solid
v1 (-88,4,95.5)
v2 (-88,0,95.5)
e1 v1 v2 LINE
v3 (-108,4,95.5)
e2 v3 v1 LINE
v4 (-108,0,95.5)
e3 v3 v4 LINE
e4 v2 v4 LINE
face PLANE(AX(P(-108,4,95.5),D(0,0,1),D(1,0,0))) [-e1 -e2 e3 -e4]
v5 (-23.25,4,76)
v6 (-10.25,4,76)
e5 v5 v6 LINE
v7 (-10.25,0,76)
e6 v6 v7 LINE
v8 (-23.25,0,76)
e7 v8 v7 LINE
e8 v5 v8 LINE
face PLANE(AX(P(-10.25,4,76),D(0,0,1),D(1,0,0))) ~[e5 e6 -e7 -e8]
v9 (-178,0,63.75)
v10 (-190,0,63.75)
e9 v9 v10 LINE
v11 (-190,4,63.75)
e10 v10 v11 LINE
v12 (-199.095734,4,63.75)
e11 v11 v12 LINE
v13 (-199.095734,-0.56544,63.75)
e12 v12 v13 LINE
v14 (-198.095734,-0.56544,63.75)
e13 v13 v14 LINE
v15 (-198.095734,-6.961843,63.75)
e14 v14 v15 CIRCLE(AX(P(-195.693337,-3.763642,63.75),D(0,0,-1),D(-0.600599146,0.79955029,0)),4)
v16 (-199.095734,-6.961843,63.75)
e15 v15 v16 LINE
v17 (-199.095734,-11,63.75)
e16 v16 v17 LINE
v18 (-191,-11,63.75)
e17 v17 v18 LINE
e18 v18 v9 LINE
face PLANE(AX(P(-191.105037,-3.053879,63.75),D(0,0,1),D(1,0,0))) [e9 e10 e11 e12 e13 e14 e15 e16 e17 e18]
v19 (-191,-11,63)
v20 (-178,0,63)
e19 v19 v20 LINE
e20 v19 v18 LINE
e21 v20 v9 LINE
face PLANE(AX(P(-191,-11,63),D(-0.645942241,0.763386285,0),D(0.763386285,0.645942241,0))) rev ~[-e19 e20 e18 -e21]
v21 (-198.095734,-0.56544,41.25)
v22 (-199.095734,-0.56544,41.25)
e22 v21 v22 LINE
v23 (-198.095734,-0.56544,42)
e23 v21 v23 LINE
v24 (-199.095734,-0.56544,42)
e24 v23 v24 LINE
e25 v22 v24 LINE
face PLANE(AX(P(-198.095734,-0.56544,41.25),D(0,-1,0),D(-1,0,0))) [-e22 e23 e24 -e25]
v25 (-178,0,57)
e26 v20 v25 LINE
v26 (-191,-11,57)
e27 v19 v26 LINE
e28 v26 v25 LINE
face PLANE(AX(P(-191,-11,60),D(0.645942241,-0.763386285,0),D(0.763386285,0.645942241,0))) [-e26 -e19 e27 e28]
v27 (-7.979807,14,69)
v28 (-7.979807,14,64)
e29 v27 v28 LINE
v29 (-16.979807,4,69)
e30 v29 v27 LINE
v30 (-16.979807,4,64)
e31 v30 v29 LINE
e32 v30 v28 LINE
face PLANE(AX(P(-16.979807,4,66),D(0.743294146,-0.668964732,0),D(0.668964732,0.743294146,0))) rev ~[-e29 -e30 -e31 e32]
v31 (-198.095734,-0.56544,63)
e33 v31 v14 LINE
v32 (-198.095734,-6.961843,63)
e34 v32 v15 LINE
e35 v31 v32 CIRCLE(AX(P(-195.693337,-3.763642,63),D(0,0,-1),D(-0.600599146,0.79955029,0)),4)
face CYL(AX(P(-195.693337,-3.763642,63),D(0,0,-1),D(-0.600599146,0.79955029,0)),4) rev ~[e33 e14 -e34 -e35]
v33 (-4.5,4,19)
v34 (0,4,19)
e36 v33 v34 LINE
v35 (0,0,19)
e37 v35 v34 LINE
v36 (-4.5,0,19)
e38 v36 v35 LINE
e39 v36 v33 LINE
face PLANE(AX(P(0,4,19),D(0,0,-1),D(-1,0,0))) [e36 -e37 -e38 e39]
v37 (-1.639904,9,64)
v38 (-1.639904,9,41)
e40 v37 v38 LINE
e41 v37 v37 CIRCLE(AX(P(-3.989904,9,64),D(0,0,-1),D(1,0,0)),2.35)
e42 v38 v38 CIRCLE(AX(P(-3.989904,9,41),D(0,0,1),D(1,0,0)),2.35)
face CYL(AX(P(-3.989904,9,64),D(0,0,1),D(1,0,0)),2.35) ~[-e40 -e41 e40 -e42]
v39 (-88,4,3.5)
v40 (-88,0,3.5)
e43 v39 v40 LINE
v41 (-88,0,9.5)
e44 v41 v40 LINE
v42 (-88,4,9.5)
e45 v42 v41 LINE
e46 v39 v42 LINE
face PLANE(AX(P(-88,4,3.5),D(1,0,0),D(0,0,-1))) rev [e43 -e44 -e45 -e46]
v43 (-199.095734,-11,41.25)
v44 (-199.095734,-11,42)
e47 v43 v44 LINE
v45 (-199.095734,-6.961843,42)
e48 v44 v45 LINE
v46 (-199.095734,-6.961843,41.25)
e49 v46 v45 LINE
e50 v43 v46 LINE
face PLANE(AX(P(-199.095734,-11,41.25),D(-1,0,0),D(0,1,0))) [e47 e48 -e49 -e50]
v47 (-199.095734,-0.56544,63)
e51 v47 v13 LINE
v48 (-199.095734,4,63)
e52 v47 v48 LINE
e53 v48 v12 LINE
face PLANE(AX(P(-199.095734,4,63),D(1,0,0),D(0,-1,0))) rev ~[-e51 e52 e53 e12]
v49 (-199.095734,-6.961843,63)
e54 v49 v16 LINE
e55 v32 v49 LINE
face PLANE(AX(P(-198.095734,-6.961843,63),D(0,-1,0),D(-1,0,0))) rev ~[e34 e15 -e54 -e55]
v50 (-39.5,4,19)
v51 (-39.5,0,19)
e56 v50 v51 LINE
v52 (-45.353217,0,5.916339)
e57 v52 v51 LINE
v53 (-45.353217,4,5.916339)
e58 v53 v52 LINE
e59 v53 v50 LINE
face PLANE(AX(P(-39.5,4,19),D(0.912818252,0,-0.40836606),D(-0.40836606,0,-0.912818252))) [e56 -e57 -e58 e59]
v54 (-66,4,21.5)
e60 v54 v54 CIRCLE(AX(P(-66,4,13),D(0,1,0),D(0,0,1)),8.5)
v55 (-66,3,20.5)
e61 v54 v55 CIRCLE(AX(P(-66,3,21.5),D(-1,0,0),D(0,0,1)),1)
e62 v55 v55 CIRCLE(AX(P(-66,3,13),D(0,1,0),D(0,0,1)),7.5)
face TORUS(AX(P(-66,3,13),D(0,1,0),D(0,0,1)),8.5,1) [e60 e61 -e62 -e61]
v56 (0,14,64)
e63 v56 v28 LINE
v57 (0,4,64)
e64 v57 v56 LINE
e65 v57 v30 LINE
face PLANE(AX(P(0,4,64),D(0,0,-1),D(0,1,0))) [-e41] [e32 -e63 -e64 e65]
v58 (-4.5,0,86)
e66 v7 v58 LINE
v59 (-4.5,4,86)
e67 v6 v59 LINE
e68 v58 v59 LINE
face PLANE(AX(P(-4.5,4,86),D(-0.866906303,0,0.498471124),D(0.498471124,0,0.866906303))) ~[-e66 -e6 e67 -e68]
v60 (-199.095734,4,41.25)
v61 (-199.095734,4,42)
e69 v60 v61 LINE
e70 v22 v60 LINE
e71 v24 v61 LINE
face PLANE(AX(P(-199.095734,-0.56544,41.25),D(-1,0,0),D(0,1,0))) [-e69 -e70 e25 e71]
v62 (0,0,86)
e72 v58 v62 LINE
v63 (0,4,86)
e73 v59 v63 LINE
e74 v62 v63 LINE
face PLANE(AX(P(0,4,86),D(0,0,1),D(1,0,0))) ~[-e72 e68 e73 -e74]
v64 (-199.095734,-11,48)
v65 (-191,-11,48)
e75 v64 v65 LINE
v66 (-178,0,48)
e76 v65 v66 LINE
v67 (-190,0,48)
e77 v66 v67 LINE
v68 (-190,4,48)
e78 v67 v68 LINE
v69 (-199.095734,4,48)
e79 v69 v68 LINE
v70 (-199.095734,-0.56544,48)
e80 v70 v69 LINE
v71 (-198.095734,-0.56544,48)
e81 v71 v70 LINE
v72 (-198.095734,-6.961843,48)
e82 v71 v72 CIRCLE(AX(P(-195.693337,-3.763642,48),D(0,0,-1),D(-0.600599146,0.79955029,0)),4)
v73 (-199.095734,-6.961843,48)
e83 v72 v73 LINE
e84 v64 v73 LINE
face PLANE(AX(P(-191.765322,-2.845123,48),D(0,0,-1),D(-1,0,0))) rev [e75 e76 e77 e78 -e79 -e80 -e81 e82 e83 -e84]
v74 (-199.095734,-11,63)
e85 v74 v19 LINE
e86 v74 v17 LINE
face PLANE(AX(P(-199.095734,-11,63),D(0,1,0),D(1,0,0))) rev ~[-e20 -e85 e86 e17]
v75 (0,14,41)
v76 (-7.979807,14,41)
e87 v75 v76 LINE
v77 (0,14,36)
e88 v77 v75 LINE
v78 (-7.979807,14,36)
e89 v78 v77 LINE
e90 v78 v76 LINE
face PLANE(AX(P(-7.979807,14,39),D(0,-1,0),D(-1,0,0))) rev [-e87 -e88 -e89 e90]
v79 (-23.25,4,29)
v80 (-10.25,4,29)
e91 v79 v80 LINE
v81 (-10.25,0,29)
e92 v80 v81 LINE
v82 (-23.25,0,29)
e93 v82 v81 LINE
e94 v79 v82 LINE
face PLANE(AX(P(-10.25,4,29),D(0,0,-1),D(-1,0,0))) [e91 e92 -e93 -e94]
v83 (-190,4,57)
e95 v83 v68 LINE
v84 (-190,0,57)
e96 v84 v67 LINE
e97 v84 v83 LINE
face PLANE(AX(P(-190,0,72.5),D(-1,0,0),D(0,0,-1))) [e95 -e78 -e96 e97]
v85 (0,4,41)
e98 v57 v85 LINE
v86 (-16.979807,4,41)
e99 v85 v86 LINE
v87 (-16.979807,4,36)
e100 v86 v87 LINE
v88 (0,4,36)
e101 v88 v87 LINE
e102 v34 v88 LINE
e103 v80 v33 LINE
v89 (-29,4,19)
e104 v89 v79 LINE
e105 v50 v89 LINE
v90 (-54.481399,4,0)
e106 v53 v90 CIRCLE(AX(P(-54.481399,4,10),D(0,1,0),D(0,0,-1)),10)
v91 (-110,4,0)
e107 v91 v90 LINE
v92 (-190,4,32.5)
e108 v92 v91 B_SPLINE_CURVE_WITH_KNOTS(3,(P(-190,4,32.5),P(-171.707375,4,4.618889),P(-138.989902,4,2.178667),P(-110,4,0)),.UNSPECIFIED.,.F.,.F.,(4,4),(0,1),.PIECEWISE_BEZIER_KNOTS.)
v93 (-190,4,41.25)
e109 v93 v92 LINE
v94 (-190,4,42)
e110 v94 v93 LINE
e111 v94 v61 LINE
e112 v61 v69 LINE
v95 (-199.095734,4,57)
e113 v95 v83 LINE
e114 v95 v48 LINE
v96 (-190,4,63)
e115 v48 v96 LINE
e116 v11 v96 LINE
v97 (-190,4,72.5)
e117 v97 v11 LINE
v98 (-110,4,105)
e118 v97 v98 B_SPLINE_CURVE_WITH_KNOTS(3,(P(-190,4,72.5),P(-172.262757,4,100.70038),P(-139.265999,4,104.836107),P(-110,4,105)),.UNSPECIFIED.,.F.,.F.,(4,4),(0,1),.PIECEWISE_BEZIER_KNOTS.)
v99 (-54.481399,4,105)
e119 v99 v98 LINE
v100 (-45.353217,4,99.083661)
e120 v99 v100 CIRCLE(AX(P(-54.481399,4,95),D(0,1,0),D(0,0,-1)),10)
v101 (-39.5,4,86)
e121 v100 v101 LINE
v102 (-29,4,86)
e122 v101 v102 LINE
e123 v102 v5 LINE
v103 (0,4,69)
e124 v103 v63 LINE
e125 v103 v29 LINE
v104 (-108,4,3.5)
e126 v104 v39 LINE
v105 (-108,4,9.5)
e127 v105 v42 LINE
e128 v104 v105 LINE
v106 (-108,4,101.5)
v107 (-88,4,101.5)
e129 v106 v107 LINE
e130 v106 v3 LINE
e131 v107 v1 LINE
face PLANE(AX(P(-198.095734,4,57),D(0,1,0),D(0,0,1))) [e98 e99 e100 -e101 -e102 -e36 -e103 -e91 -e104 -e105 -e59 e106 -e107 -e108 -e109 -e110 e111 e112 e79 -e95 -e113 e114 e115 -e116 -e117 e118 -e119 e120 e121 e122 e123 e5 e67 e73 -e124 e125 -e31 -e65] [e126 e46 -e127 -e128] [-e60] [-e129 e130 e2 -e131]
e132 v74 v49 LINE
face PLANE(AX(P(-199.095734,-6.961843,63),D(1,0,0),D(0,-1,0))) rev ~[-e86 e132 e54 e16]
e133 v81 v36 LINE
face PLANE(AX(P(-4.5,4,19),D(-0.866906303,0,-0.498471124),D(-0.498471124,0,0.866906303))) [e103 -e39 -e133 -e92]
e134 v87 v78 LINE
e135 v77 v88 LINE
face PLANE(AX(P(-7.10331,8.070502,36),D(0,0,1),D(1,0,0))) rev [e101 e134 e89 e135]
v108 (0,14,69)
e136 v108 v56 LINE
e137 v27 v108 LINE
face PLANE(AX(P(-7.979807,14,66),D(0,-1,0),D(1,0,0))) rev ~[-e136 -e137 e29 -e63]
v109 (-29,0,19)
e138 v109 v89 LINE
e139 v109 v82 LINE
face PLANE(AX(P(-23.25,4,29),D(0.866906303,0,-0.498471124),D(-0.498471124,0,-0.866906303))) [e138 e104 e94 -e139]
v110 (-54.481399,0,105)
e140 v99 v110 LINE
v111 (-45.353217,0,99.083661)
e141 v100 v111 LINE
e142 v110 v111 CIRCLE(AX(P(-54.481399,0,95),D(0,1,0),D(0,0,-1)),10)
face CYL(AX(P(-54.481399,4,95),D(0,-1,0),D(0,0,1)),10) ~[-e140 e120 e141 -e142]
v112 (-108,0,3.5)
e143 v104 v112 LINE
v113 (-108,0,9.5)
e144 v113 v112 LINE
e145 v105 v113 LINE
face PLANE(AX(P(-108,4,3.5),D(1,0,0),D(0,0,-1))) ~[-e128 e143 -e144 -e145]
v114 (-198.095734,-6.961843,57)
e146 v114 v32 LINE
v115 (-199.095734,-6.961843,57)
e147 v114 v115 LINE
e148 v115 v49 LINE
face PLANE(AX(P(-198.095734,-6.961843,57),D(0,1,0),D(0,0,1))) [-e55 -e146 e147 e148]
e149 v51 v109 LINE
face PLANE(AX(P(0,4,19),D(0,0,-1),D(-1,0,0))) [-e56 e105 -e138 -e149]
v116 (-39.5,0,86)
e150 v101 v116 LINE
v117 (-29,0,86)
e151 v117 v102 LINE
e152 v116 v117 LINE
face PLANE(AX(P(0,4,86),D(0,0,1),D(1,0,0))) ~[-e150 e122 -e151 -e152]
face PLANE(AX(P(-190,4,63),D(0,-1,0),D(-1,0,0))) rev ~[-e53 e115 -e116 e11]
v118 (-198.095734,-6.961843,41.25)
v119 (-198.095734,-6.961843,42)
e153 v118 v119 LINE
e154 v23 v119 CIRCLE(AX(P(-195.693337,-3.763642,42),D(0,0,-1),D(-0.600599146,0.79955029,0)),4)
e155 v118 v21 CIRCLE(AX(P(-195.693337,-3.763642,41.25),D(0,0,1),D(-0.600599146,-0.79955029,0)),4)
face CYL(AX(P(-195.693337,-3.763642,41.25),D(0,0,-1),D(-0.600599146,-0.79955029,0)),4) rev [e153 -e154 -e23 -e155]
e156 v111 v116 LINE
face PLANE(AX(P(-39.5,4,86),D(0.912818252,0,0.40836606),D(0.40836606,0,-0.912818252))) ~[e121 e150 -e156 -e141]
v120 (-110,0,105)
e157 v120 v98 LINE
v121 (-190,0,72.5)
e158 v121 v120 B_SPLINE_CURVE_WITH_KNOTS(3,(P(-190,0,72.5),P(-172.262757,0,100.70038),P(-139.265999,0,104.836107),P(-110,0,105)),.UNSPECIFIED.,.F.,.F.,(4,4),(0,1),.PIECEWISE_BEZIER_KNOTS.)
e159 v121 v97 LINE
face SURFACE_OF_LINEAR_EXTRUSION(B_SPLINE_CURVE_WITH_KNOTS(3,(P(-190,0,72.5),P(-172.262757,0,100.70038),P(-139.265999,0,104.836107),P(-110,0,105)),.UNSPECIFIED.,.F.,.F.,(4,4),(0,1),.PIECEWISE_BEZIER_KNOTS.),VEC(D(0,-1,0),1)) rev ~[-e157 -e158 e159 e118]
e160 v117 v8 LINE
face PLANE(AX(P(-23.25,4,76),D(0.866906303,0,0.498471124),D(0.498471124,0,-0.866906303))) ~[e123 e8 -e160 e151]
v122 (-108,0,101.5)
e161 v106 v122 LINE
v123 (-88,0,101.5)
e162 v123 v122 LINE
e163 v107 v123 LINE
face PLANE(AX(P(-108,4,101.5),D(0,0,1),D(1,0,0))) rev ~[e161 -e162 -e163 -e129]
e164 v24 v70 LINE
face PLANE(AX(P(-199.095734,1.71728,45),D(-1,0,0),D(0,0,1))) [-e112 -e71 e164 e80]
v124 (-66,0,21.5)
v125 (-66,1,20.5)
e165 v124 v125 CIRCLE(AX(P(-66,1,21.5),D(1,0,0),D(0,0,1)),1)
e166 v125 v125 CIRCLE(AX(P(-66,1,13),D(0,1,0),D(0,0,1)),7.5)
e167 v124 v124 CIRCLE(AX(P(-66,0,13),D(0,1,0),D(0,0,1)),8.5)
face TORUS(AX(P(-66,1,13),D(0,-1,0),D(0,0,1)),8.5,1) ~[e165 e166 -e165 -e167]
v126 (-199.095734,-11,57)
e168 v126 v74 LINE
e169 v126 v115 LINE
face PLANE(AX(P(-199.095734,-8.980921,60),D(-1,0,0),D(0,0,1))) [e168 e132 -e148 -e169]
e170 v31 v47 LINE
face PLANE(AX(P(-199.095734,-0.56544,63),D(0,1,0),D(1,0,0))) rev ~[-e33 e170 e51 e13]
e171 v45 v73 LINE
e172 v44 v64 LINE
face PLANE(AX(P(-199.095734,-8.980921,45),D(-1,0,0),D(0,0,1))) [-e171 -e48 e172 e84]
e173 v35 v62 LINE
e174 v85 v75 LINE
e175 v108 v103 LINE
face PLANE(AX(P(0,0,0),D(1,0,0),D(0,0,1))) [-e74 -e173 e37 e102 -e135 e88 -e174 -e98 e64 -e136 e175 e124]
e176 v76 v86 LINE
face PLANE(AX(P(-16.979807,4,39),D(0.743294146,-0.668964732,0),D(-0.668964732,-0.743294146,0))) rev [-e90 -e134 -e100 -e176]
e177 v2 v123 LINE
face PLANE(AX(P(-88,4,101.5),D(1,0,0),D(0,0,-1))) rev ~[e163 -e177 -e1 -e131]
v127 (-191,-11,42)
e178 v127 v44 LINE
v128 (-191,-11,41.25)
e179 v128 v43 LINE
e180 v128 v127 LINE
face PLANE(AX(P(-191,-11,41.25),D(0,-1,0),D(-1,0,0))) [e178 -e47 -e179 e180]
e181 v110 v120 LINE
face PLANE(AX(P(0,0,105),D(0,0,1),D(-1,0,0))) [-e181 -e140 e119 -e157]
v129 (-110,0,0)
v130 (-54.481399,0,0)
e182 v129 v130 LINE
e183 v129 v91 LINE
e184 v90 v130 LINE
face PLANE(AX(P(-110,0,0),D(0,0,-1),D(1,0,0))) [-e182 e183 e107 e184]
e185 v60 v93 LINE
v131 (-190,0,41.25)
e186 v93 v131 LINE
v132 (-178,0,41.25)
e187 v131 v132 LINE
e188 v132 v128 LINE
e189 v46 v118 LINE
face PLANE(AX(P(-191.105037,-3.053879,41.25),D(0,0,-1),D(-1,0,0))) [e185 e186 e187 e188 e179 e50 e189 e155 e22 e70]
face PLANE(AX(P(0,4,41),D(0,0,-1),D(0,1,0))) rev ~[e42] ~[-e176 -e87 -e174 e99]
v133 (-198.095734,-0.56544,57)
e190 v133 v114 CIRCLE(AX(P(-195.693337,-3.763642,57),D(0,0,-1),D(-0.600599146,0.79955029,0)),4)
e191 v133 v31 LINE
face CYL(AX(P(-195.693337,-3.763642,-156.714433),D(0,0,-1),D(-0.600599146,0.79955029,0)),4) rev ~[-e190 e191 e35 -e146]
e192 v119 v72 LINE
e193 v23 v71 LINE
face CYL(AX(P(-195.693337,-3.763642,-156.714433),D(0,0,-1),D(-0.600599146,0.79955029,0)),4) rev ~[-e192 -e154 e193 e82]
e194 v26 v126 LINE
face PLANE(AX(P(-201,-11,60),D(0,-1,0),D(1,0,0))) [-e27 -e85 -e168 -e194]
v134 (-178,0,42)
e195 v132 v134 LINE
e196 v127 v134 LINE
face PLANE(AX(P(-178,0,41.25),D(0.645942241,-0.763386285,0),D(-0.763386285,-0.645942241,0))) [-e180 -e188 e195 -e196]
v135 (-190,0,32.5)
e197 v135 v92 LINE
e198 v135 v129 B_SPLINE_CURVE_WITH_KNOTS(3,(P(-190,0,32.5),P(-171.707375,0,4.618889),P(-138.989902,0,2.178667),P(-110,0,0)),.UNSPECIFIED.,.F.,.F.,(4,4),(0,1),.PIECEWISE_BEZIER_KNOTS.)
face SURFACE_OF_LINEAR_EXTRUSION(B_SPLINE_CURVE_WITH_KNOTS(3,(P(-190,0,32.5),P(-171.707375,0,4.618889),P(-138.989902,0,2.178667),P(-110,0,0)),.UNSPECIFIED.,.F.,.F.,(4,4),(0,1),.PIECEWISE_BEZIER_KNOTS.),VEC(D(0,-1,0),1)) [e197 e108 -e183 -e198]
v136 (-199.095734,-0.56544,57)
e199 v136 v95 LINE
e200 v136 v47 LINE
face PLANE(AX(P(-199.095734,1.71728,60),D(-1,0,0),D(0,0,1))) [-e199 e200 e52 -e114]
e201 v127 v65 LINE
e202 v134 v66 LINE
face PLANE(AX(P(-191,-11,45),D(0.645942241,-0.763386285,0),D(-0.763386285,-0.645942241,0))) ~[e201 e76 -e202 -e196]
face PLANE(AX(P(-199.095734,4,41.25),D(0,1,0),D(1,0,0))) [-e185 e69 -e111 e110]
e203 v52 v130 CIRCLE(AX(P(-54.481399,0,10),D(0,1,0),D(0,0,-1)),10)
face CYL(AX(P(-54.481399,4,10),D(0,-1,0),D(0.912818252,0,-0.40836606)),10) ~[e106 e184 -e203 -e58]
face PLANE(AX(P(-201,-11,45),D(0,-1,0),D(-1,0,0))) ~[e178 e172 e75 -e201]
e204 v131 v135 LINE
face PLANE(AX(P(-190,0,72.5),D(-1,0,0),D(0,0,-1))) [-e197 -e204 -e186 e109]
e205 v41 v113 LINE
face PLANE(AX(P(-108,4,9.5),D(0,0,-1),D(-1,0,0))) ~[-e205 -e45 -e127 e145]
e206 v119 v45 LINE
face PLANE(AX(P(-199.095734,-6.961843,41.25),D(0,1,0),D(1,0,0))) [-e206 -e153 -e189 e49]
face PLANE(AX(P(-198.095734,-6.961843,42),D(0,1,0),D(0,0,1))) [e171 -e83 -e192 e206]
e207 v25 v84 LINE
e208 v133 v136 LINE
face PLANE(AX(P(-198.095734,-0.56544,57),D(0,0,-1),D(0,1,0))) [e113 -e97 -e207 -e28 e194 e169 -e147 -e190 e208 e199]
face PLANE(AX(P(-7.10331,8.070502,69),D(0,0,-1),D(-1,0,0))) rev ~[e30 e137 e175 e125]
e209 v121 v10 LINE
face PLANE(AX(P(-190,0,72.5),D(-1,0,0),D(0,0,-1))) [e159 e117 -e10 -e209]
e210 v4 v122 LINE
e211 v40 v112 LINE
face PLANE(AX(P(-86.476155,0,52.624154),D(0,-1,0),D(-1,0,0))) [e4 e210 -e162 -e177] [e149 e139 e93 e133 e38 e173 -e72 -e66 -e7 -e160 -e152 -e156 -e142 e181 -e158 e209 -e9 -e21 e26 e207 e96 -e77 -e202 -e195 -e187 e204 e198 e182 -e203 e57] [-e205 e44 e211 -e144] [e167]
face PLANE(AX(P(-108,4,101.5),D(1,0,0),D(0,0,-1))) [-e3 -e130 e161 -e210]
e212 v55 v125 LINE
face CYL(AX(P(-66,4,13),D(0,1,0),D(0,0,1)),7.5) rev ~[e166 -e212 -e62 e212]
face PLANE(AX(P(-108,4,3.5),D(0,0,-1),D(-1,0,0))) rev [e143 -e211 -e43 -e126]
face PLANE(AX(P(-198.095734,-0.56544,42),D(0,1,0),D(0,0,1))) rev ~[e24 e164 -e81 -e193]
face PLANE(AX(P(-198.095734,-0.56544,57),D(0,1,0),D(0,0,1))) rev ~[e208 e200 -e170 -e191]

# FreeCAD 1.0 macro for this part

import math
import FreeCAD as App
import Part
import Sketcher


def edges_at(feature, points):
    """Names of the edges that pass closest to the given points."""
    edges = feature.Shape.Edges
    near = lambda p: min(range(len(edges)), key=lambda i: edges[i].distToShape(Part.Vertex(*p))[0])
    return sorted({f"Edge{near(p) + 1}" for p in points})


def add_polygon(sketch, points):
    """Adds a closed chain of lines whose ends are joined by coincident constraints."""
    first, n = sketch.GeometryCount, len(points)
    for a, b in zip(points, points[1:] + points[:1]):
        sketch.addGeometry(Part.LineSegment(App.Vector(*a, 0), App.Vector(*b, 0)), False)
    for i in range(n):
        sketch.addConstraint(Sketcher.Constraint("Coincident", first + i, 2, first + (i + 1) % n, 1))

doc = App.newDocument("Part")
body = doc.addObject("PartDesign::Body", "Body")

# Sketch on XZ plane
sketch1 = doc.addObject("Sketcher::SketchObject", "Sketch")
body.addObject(sketch1)
sketch1.AttachmentSupport = (doc.XZ_Plane, [""])
sketch1.MapMode = "FlatFace"
sketch1.addGeometry([
    Part.LineSegment(App.Vector(0, 0, 0), App.Vector(-110, 0, 0)),  # 0
    Part.BSplineCurve([App.Vector(-190, 32.5, 0), App.Vector(-171.707375, 4.618889, 0), App.Vector(-138.989902, 2.178667, 0), App.Vector(-110, 0, 0)], [4, 4], [0, 1], False, 3, [1, 1, 1, 1], False),  # 1
    Part.LineSegment(App.Vector(-190, 32.5, 0), App.Vector(-190, 72.5, 0)),  # 2
    Part.BSplineCurve([App.Vector(-190, 72.5, 0), App.Vector(-172.262757, 100.70038, 0), App.Vector(-139.265999, 104.836107, 0), App.Vector(-110, 105, 0)], [4, 4], [0, 1], False, 3, [1, 1, 1, 1], False),  # 3
    Part.LineSegment(App.Vector(-110, 105, 0), App.Vector(0, 105, 0)),  # 4
    Part.LineSegment(App.Vector(0, 105, 0), App.Vector(0, 0, 0)),  # 5
], False)
sketch1.addConstraint([
    Sketcher.Constraint("Block", 1),
    Sketcher.Constraint("Block", 3),
    Sketcher.Constraint("Coincident", 0, 2, 1, 2),
    Sketcher.Constraint("Coincident", 1, 1, 2, 1),
    Sketcher.Constraint("Coincident", 2, 2, 3, 1),
    Sketcher.Constraint("Coincident", 3, 2, 4, 1),
    Sketcher.Constraint("Coincident", 4, 2, 5, 1),
    Sketcher.Constraint("Coincident", 5, 2, 0, 1),
    Sketcher.Constraint("Horizontal", 0),
    Sketcher.Constraint("Horizontal", 4),
    Sketcher.Constraint("Vertical", 5),
    Sketcher.Constraint("PointOnObject", 4, 2, -2),
])
pad1 = doc.addObject("PartDesign::Pad", "Pad")
body.addObject(pad1)
pad1.Profile = sketch1
pad1.Length = 4
pad1.Reversed = True

# Sketch on XY plane
sketch2 = doc.addObject("Sketcher::SketchObject", "Sketch001")
body.addObject(sketch2)
sketch2.AttachmentSupport = (doc.XY_Plane, [""])
sketch2.MapMode = "FlatFace"
sketch2.AttachmentOffset = App.Placement(App.Vector(0, 0, 60), App.Rotation())
add_polygon(sketch2, [(-190, 4), (-201, 4), (-201, -11), (-191, -11), (-178, 0)])  # lines 0-4
sketch2.addConstraint([
    Sketcher.Constraint("Horizontal", 0),
    Sketcher.Constraint("Vertical", 1),
    Sketcher.Constraint("Horizontal", 2),
    Sketcher.Constraint("PointOnObject", 3, 2, -1),
    Sketcher.Constraint("DistanceX", 0, 2, 0, 1, 11.0),
    Sketcher.Constraint("DistanceX", 2, 1, 2, 2, 10.0),
    Sketcher.Constraint("DistanceY", 1, 2, 1, 1, 15.0),
    Sketcher.Constraint("DistanceX", 0, 2, -1, 1, 201.0),
    Sketcher.Constraint("DistanceY", -1, 1, 0, 2, 4.0),
    Sketcher.Constraint("DistanceX", 3, 2, -1, 1, 178.0),
])
pad2 = doc.addObject("PartDesign::Pad", "Pad001")
body.addObject(pad2)
pad2.Profile = sketch2
pad2.Length = 6
pad2.Midplane = True
doc.recompute()

datumplane = doc.addObject("PartDesign::Plane", "DatumPlane")
body.addObject(datumplane)
datumplane.AttachmentSupport = (doc.XY_Plane, [""])
datumplane.MapMode = "FlatFace"
datumplane.AttachmentOffset = App.Placement(App.Vector(0, 0, 52.5), App.Rotation())
mirrored = doc.addObject("PartDesign::Mirrored", "Mirrored")
body.addObject(mirrored)
mirrored.Originals = [pad2]
mirrored.MirrorPlane = (datumplane, [""])
body.Tip = mirrored

# Sketch on XY plane
sketch3 = doc.addObject("Sketcher::SketchObject", "Sketch002")
body.addObject(sketch3)
sketch3.AttachmentSupport = (doc.XY_Plane, [""])
sketch3.MapMode = "FlatFace"
sketch3.AttachmentOffset = App.Placement(App.Vector(0, 0, 66), App.Rotation())
add_polygon(sketch3, [(-8, 14), (-17, 4), (0, 4), (0, 14)])  # lines 0-3
sketch3.addConstraint([
    Sketcher.Constraint("Horizontal", 1),
    Sketcher.Constraint("Vertical", 2),
    Sketcher.Constraint("Horizontal", 3),
    Sketcher.Constraint("PointOnObject", 1, 2, -2),
    Sketcher.Constraint("DistanceY", 2, 1, 2, 2, 10.0),
    Sketcher.Constraint("DistanceY", -1, 1, 0, 2, 4.0),
    Sketcher.Constraint("DistanceX", 0, 2, 3, 2, 9.0),
    Sketcher.Constraint("DistanceX", 1, 1, 1, 2, 16.979807),
])
pad3 = doc.addObject("PartDesign::Pad", "Pad002")
body.addObject(pad3)
pad3.Profile = sketch3
pad3.Length = 6
pad3.Midplane = True
doc.recompute()

datumplane2 = doc.addObject("PartDesign::Plane", "DatumPlane001")
body.addObject(datumplane2)
datumplane2.AttachmentSupport = (doc.XY_Plane, [""])
datumplane2.MapMode = "FlatFace"
datumplane2.AttachmentOffset = App.Placement(App.Vector(0, 0, 52.5), App.Rotation())
mirrored2 = doc.addObject("PartDesign::Mirrored", "Mirrored001")
body.addObject(mirrored2)
mirrored2.Originals = [pad3]
mirrored2.MirrorPlane = (datumplane2, [""])
body.Tip = mirrored2

# Sketch on XY plane
sketch4 = doc.addObject("Sketcher::SketchObject", "Sketch003")
body.addObject(sketch4)
sketch4.AttachmentSupport = (doc.XY_Plane, [""])
sketch4.MapMode = "FlatFace"
sketch4.AttachmentOffset = App.Placement(App.Vector(0, 0, 42), App.Rotation())
sketch4.addGeometry(Part.Circle(App.Vector(-4, 10, 0), App.Vector(0, 0, 1), 2.5), False)
sketch4.addConstraint([
    Sketcher.Constraint("Diameter", 0, 5.0),
    Sketcher.Constraint("DistanceX", 0, 3, -1, 1, 4.0),
    Sketcher.Constraint("DistanceY", -1, 1, 0, 3, 10.0),
])
pad4 = doc.addObject("PartDesign::Pad", "Pad003")
body.addObject(pad4)
pad4.Profile = sketch4
pad4.Type = "UpToFirst"

# Sketch on XZ plane
sketch5 = doc.addObject("Sketcher::SketchObject", "Sketch004")
body.addObject(sketch5)
sketch5.AttachmentSupport = (doc.XZ_Plane, [""])
sketch5.MapMode = "FlatFace"
sketch5.AttachmentOffset = App.Placement(App.Vector(0, 0, -4), App.Rotation())
add_polygon(sketch5, [(-108, 96), (-108, 102), (-88, 102), (-88, 96)])  # lines 0-3
sketch5.addConstraint([
    Sketcher.Constraint("Vertical", 0),
    Sketcher.Constraint("Horizontal", 1),
    Sketcher.Constraint("Vertical", 2),
    Sketcher.Constraint("Horizontal", 3),
    Sketcher.Constraint("DistanceX", 1, 1, 1, 2, 20.0),
    Sketcher.Constraint("DistanceY", 0, 1, 0, 2, 6.0),
    Sketcher.Constraint("DistanceX", 0, 2, -1, 1, 108.0),
    Sketcher.Constraint("DistanceY", -1, 1, 0, 2, 101.5),
])
pocket1 = doc.addObject("PartDesign::Pocket", "Pocket")
body.addObject(pocket1)
pocket1.Profile = sketch5
pocket1.Length = 10
pocket1.Reversed = True
doc.recompute()

datumplane3 = doc.addObject("PartDesign::Plane", "DatumPlane002")
body.addObject(datumplane3)
datumplane3.AttachmentSupport = (doc.XY_Plane, [""])
datumplane3.MapMode = "FlatFace"
datumplane3.AttachmentOffset = App.Placement(App.Vector(0, 0, 52.5), App.Rotation())
mirrored3 = doc.addObject("PartDesign::Mirrored", "Mirrored002")
body.addObject(mirrored3)
mirrored3.Originals = [pocket1]
mirrored3.MirrorPlane = (datumplane3, [""])
body.Tip = mirrored3

# Sketch on XZ plane
sketch6 = doc.addObject("Sketcher::SketchObject", "Sketch005")
body.addObject(sketch6)
sketch6.AttachmentSupport = (doc.XZ_Plane, [""])
sketch6.MapMode = "FlatFace"
sketch6.AttachmentOffset = App.Placement(App.Vector(0, 0, -4), App.Rotation())
add_polygon(sketch6, [(-40, 19), (0, 19), (0, 0), (-48, 0)])  # lines 0-3
sketch6.addConstraint([
    Sketcher.Constraint("Horizontal", 0),
    Sketcher.Constraint("Vertical", 1),
    Sketcher.Constraint("Horizontal", 2),
    Sketcher.Constraint("Coincident", 1, 2, -1, 1),
    Sketcher.Constraint("DistanceX", 2, 2, 2, 1, 48.0),
    Sketcher.Constraint("DistanceY", 1, 2, 1, 1, 19.0),
    Sketcher.Constraint("DistanceX", 0, 1, 0, 2, 39.5),
])
pocket2 = doc.addObject("PartDesign::Pocket", "Pocket001")
body.addObject(pocket2)
pocket2.Profile = sketch6
pocket2.Length = 456.537127
pocket2.Midplane = True
doc.recompute()

datumplane4 = doc.addObject("PartDesign::Plane", "DatumPlane003")
body.addObject(datumplane4)
datumplane4.AttachmentSupport = (doc.XY_Plane, [""])
datumplane4.MapMode = "FlatFace"
datumplane4.AttachmentOffset = App.Placement(App.Vector(0, 0, 52.5), App.Rotation())
mirrored4 = doc.addObject("PartDesign::Mirrored", "Mirrored003")
body.addObject(mirrored4)
mirrored4.Originals = [pocket2]
mirrored4.MirrorPlane = (datumplane4, [""])
body.Tip = mirrored4
doc.recompute()

fillet = doc.addObject("PartDesign::Fillet", "Fillet")
body.addObject(fillet)
fillet.Base = (mirrored4, edges_at(mirrored4, [(-48, 2, 0), (-48, 2, 105)]))
fillet.Radius = 10

# Sketch on XZ plane
sketch7 = doc.addObject("Sketcher::SketchObject", "Sketch006")
body.addObject(sketch7)
sketch7.AttachmentSupport = (doc.XZ_Plane, [""])
sketch7.MapMode = "FlatFace"
sketch7.AttachmentOffset = App.Placement(App.Vector(0, 0, -4), App.Rotation())
add_polygon(sketch7, [(-10, 29), (-4, 19), (-29, 19), (-23, 29)])  # lines 0-3
sketch7.addConstraint([
    Sketcher.Constraint("Horizontal", 1),
    Sketcher.Constraint("Horizontal", 3),
    Sketcher.Constraint("Equal", 0, 2),
    Sketcher.Constraint("DistanceX", 3, 1, 3, 2, 13.0),
    Sketcher.Constraint("DistanceX", 1, 2, 1, 1, 24.5),
    Sketcher.Constraint("DistanceY", -1, 1, 0, 2, 19.0),
    Sketcher.Constraint("DistanceX", 1, 2, -1, 1, 29.0),
    Sketcher.Constraint("DistanceY", -1, 1, 2, 2, 29.0),
])
pocket3 = doc.addObject("PartDesign::Pocket", "Pocket002")
body.addObject(pocket3)
pocket3.Profile = sketch7
pocket3.Length = 456.537127
pocket3.Midplane = True
doc.recompute()

datumplane5 = doc.addObject("PartDesign::Plane", "DatumPlane004")
body.addObject(datumplane5)
datumplane5.AttachmentSupport = (doc.XY_Plane, [""])
datumplane5.MapMode = "FlatFace"
datumplane5.AttachmentOffset = App.Placement(App.Vector(0, 0, 52.5), App.Rotation())
mirrored5 = doc.addObject("PartDesign::Mirrored", "Mirrored004")
body.addObject(mirrored5)
mirrored5.Originals = [pocket3]
mirrored5.MirrorPlane = (datumplane5, [""])
body.Tip = mirrored5

# Sketch on YZ plane
sketch8 = doc.addObject("Sketcher::SketchObject", "Sketch007")
body.addObject(sketch8)
sketch8.AttachmentSupport = (doc.YZ_Plane, [""])
sketch8.MapMode = "FlatFace"
add_polygon(sketch8, [(14, 64), (4, 64), (4, 41), (14, 41)])  # lines 0-3
sketch8.addConstraint([
    Sketcher.Constraint("Horizontal", 0),
    Sketcher.Constraint("Vertical", 1),
    Sketcher.Constraint("Horizontal", 2),
    Sketcher.Constraint("Vertical", 3),
    Sketcher.Constraint("DistanceX", 0, 2, 0, 1, 10.0),
    Sketcher.Constraint("DistanceY", 1, 2, 1, 1, 23.0),
    Sketcher.Constraint("DistanceX", -1, 1, 0, 2, 4.0),
    Sketcher.Constraint("DistanceY", -1, 1, 0, 2, 64.0),
])
pocket4 = doc.addObject("PartDesign::Pocket", "Pocket003")
body.addObject(pocket4)
pocket4.Profile = sketch8
pocket4.Length = 21

# Sketch on XY plane
sketch9 = doc.addObject("Sketcher::SketchObject", "Sketch008")
body.addObject(sketch9)
sketch9.AttachmentSupport = (doc.XY_Plane, [""])
sketch9.MapMode = "FlatFace"
sketch9.AttachmentOffset = App.Placement(App.Vector(0, 0, 64), App.Rotation())
sketch9.addGeometry(Part.Circle(App.Vector(-4, 9, 0), App.Vector(0, 0, 1), 2.4), False)
sketch9.addConstraint([
    Sketcher.Constraint("Diameter", 0, 4.7),
    Sketcher.Constraint("DistanceY", -1, 1, 0, 3, 9.0),
    Sketcher.Constraint("DistanceX", 0, 3, -1, 1, 3.989904),
])
pad5 = doc.addObject("PartDesign::Pad", "Pad004")
body.addObject(pad5)
pad5.Profile = sketch9
pad5.Type = "UpToFirst"
pad5.Reversed = True

# Sketch on XY plane
sketch10 = doc.addObject("Sketcher::SketchObject", "Sketch009")
body.addObject(sketch10)
sketch10.AttachmentSupport = (doc.XY_Plane, [""])
sketch10.MapMode = "FlatFace"
sketch10.AttachmentOffset = App.Placement(App.Vector(0, 0, 52.5), App.Rotation())
sketch10.addGeometry([
    Part.LineSegment(App.Vector(-198.1, -0.6, 0), App.Vector(-198.1, 4, 0)),  # 0
    Part.LineSegment(App.Vector(-198.1, 4, 0), App.Vector(-202.6, 4.8, 0)),  # 1
    Part.LineSegment(App.Vector(-202.6, 4.8, 0), App.Vector(-202.7, -12.1, 0)),  # 2
    Part.LineSegment(App.Vector(-202.7, -12.1, 0), App.Vector(-198.1, -11, 0)),  # 3
    Part.LineSegment(App.Vector(-198.1, -11, 0), App.Vector(-198.1, -7, 0)),  # 4
    Part.ArcOfCircle(Part.Circle(App.Vector(-195.7, -3.8, 0), App.Vector(0, 0, 1), 4), math.radians(-127), math.radians(127)),  # 5
], False)
sketch10.addConstraint([
    Sketcher.Constraint("Coincident", 0, 2, 1, 1),
    Sketcher.Constraint("Coincident", 1, 2, 2, 1),
    Sketcher.Constraint("Coincident", 2, 2, 3, 1),
    Sketcher.Constraint("Coincident", 3, 2, 4, 1),
    Sketcher.Constraint("Coincident", 4, 2, 5, 1),
    Sketcher.Constraint("Coincident", 5, 2, 0, 1),
    Sketcher.Constraint("Vertical", 0),
    Sketcher.Constraint("Vertical", 4),
    Sketcher.Constraint("Vertical", 0, 2, 3, 2),
    Sketcher.Constraint("Radius", 5, 4.0),
    Sketcher.Constraint("DistanceY", -1, 1, 0, 2, 4.0),
    Sketcher.Constraint("DistanceY", 3, 2, -1, 1, 11.0),
    Sketcher.Constraint("DistanceY", 0, 1, 0, 2, 4.56544),
    Sketcher.Constraint("DistanceX", 1, 2, -1, 1, 202.588499),
    Sketcher.Constraint("DistanceY", 5, 3, 1, 2, 8.606602),
    Sketcher.Constraint("DistanceX", 2, 2, 1, 2, 0.130699),
    Sketcher.Constraint("DistanceY", 4, 2, 5, 3, 3.198201),
    Sketcher.Constraint("Distance", 2, 16.958651),
    Sketcher.Constraint("DistanceX", 2, 2, 5, 3, 7.025861),
])
pocket5 = doc.addObject("PartDesign::Pocket", "Pocket004")
body.addObject(pocket5)
pocket5.Profile = sketch10
pocket5.Type = "ThroughAll"
pocket5.Midplane = True

# Sketch on YZ plane
sketch11 = doc.addObject("Sketcher::SketchObject", "Sketch010")
body.addObject(sketch11)
sketch11.AttachmentSupport = (doc.YZ_Plane, [""])
sketch11.MapMode = "FlatFace"
sketch11.AttachmentOffset = App.Placement(App.Vector(0, 0, -198.095734), App.Rotation())
add_polygon(sketch11, [(4, 57), (-0.6, 57), (-0.6, 63), (4, 63)])  # lines 0-3
add_polygon(sketch11, [(4, 42), (-0.6, 42), (-0.6, 48), (4, 48)])  # lines 4-7
add_polygon(sketch11, [(-7, 42), (-11, 42), (-11, 48), (-7, 48)])  # lines 8-11
add_polygon(sketch11, [(-7, 57), (-11, 57), (-11, 63), (-7, 63)])  # lines 12-15
sketch11.addConstraint([
    Sketcher.Constraint("Horizontal", 0),
    Sketcher.Constraint("Vertical", 1),
    Sketcher.Constraint("Horizontal", 2),
    Sketcher.Constraint("Vertical", 3),
    Sketcher.Constraint("Horizontal", 4),
    Sketcher.Constraint("Vertical", 5),
    Sketcher.Constraint("Horizontal", 6),
    Sketcher.Constraint("Vertical", 7),
    Sketcher.Constraint("Horizontal", 8),
    Sketcher.Constraint("Vertical", 9),
    Sketcher.Constraint("Horizontal", 10),
    Sketcher.Constraint("Vertical", 11),
    Sketcher.Constraint("Horizontal", 12),
    Sketcher.Constraint("Vertical", 13),
    Sketcher.Constraint("Horizontal", 14),
    Sketcher.Constraint("Vertical", 15),
    Sketcher.Constraint("Horizontal", 7, 2, 8, 2),
    Sketcher.Constraint("Horizontal", 6, 2, 9, 2),
    Sketcher.Constraint("Horizontal", 3, 2, 12, 2),
    Sketcher.Constraint("Horizontal", 2, 2, 13, 2),
    Sketcher.Constraint("Vertical", 1, 2, 4, 2),
    Sketcher.Constraint("Vertical", 3, 2, 6, 2),
    Sketcher.Constraint("Vertical", 9, 2, 12, 2),
    Sketcher.Constraint("Vertical", 11, 2, 14, 2),
    Sketcher.Constraint("Equal", 3, 5),
    Sketcher.Constraint("DistanceY", 1, 1, 1, 2, 6.0),
    Sketcher.Constraint("DistanceY", -1, 1, 0, 2, 57.0),
    Sketcher.Constraint("DistanceX", -1, 1, 2, 2, 4.0),
    Sketcher.Constraint("DistanceY", -1, 1, 4, 2, 42.0),
    Sketcher.Constraint("DistanceX", 8, 2, -1, 1, 11.0),
    Sketcher.Constraint("DistanceX", 0, 2, 0, 1, 4.56544),
    Sketcher.Constraint("DistanceX", 8, 2, 8, 1, 4.038157),
])
pad6 = doc.addObject("PartDesign::Pad", "Pad005")
body.addObject(pad6)
pad6.Profile = sketch11
pad6.Length = 1
pad6.Reversed = True

# Sketch on XZ plane
sketch12 = doc.addObject("Sketcher::SketchObject", "Sketch011")
body.addObject(sketch12)
sketch12.AttachmentSupport = (doc.XZ_Plane, [""])
sketch12.MapMode = "FlatFace"
sketch12.AttachmentOffset = App.Placement(App.Vector(0, 0, -4), App.Rotation())
sketch12.addGeometry(Part.Circle(App.Vector(-66, 13, 0), App.Vector(0, 0, 1), 8), False)
sketch12.addConstraint([
    Sketcher.Constraint("Diameter", 0, 15.0),
    Sketcher.Constraint("DistanceX", 0, 3, -1, 1, 66.0),
    Sketcher.Constraint("DistanceY", -1, 1, 0, 3, 13.0),
])
pocket6 = doc.addObject("PartDesign::Pocket", "Pocket005")
body.addObject(pocket6)
pocket6.Profile = sketch12
pocket6.Length = 10
pocket6.Reversed = True
doc.recompute()

fillet2 = doc.addObject("PartDesign::Fillet", "Fillet001")
body.addObject(fillet2)
fillet2.Base = (pocket6, edges_at(pocket6, [(-66, 0, 5.5), (-66, 4, 5.5)]))
fillet2.Radius = 1

# Sketch on XY plane
sketch13 = doc.addObject("Sketcher::SketchObject", "Sketch012")
body.addObject(sketch13)
sketch13.AttachmentSupport = (doc.XY_Plane, [""])
sketch13.MapMode = "FlatFace"
sketch13.AttachmentOffset = App.Placement(App.Vector(0, 0, 41.25), App.Rotation())
sketch13.addGeometry([
    Part.LineSegment(App.Vector(-198.1, -0.6, 0), App.Vector(-199.1, -0.6, 0)),  # 0
    Part.LineSegment(App.Vector(-199.1, -0.6, 0), App.Vector(-199.1, 4, 0)),  # 1
    Part.LineSegment(App.Vector(-199.1, 4, 0), App.Vector(-190, 4, 0)),  # 2
    Part.LineSegment(App.Vector(-190, 4, 0), App.Vector(-190, 0, 0)),  # 3
    Part.LineSegment(App.Vector(-190, 0, 0), App.Vector(-178, 0, 0)),  # 4
    Part.LineSegment(App.Vector(-178, 0, 0), App.Vector(-191, -11, 0)),  # 5
    Part.LineSegment(App.Vector(-191, -11, 0), App.Vector(-199.1, -11, 0)),  # 6
    Part.LineSegment(App.Vector(-199.1, -11, 0), App.Vector(-199.1, -7, 0)),  # 7
    Part.LineSegment(App.Vector(-199.1, -7, 0), App.Vector(-198.1, -7, 0)),  # 8
    Part.ArcOfCircle(Part.Circle(App.Vector(-195.7, -3.8, 0), App.Vector(0, 0, 1), 4), math.radians(-127), math.radians(127)),  # 9
], False)
sketch13.addConstraint([
    Sketcher.Constraint("Coincident", 0, 2, 1, 1),
    Sketcher.Constraint("Coincident", 1, 2, 2, 1),
    Sketcher.Constraint("Coincident", 2, 2, 3, 1),
    Sketcher.Constraint("Coincident", 3, 2, 4, 1),
    Sketcher.Constraint("Coincident", 4, 2, 5, 1),
    Sketcher.Constraint("Coincident", 5, 2, 6, 1),
    Sketcher.Constraint("Coincident", 6, 2, 7, 1),
    Sketcher.Constraint("Coincident", 7, 2, 8, 1),
    Sketcher.Constraint("Coincident", 8, 2, 9, 1),
    Sketcher.Constraint("Coincident", 9, 2, 0, 1),
    Sketcher.Constraint("Horizontal", 0),
    Sketcher.Constraint("Vertical", 1),
    Sketcher.Constraint("Horizontal", 2),
    Sketcher.Constraint("Vertical", 3),
    Sketcher.Constraint("Horizontal", 4),
    Sketcher.Constraint("Horizontal", 6),
    Sketcher.Constraint("Vertical", 7),
    Sketcher.Constraint("Horizontal", 8),
    Sketcher.Constraint("PointOnObject", 3, 2, -1),
    Sketcher.Constraint("Vertical", 1, 2, 6, 2),
    Sketcher.Constraint("Vertical", 8, 2, 9, 2),
    Sketcher.Constraint("Radius", 9, 4.0),
    Sketcher.Constraint("DistanceX", 0, 2, 0, 1, 1.0),
    Sketcher.Constraint("DistanceX", 4, 1, 4, 2, 12.0),
    Sketcher.Constraint("DistanceY", 3, 2, 3, 1, 4.0),
    Sketcher.Constraint("DistanceX", 2, 2, -1, 1, 190.0),
    Sketcher.Constraint("DistanceX", 5, 2, -1, 1, 191.0),
    Sketcher.Constraint("DistanceY", 5, 2, -1, 1, 11.0),
    Sketcher.Constraint("DistanceY", 1, 1, 1, 2, 4.56544),
    Sketcher.Constraint("DistanceY", 9, 3, 0, 2, 3.198201),
    Sketcher.Constraint("DistanceX", 2, 1, 2, 2, 9.095734),
])
pad7 = doc.addObject("PartDesign::Pad", "Pad006")
body.addObject(pad7)
pad7.Profile = sketch13
pad7.Length = 0.75

# Sketch on XY plane
sketch14 = doc.addObject("Sketcher::SketchObject", "Sketch013")
body.addObject(sketch14)
sketch14.AttachmentSupport = (doc.XY_Plane, [""])
sketch14.MapMode = "FlatFace"
sketch14.AttachmentOffset = App.Placement(App.Vector(0, 0, 63), App.Rotation())
sketch14.addGeometry([
    Part.LineSegment(App.Vector(-190, 4, 0), App.Vector(-199.1, 4, 0)),  # 0
    Part.LineSegment(App.Vector(-199.1, 4, 0), App.Vector(-199.1, -0.6, 0)),  # 1
    Part.LineSegment(App.Vector(-199.1, -0.6, 0), App.Vector(-198.1, -0.6, 0)),  # 2
    Part.ArcOfCircle(Part.Circle(App.Vector(-195.7, -3.8, 0), App.Vector(0, 0, 1), 4), math.radians(-127), math.radians(127)),  # 3
    Part.LineSegment(App.Vector(-198.1, -7, 0), App.Vector(-199.1, -7, 0)),  # 4
    Part.LineSegment(App.Vector(-199.1, -7, 0), App.Vector(-199.1, -11, 0)),  # 5
    Part.LineSegment(App.Vector(-199.1, -11, 0), App.Vector(-191, -11, 0)),  # 6
    Part.LineSegment(App.Vector(-191, -11, 0), App.Vector(-178, 0, 0)),  # 7
    Part.LineSegment(App.Vector(-178, 0, 0), App.Vector(-190, 0, 0)),  # 8
    Part.LineSegment(App.Vector(-190, 0, 0), App.Vector(-190, 4, 0)),  # 9
], False)
sketch14.addConstraint([
    Sketcher.Constraint("Coincident", 0, 2, 1, 1),
    Sketcher.Constraint("Coincident", 1, 2, 2, 1),
    Sketcher.Constraint("Coincident", 2, 2, 3, 2),
    Sketcher.Constraint("Coincident", 3, 1, 4, 1),
    Sketcher.Constraint("Coincident", 4, 2, 5, 1),
    Sketcher.Constraint("Coincident", 5, 2, 6, 1),
    Sketcher.Constraint("Coincident", 6, 2, 7, 1),
    Sketcher.Constraint("Coincident", 7, 2, 8, 1),
    Sketcher.Constraint("Coincident", 8, 2, 9, 1),
    Sketcher.Constraint("Coincident", 9, 2, 0, 1),
    Sketcher.Constraint("Horizontal", 0),
    Sketcher.Constraint("Vertical", 1),
    Sketcher.Constraint("Horizontal", 2),
    Sketcher.Constraint("Horizontal", 4),
    Sketcher.Constraint("Vertical", 5),
    Sketcher.Constraint("Horizontal", 6),
    Sketcher.Constraint("Horizontal", 8),
    Sketcher.Constraint("Vertical", 9),
    Sketcher.Constraint("PointOnObject", 7, 2, -1),
    Sketcher.Constraint("Vertical", 2, 2, 3, 1),
    Sketcher.Constraint("Vertical", 1, 2, 4, 2),
    Sketcher.Constraint("Radius", 3, 4.0),
    Sketcher.Constraint("DistanceX", 2, 1, 2, 2, 1.0),
    Sketcher.Constraint("DistanceX", 8, 2, 8, 1, 12.0),
    Sketcher.Constraint("DistanceY", 9, 1, 9, 2, 4.0),
    Sketcher.Constraint("DistanceY", 5, 2, -1, 1, 11.0),
    Sketcher.Constraint("DistanceX", 6, 2, -1, 1, 191.0),
    Sketcher.Constraint("DistanceX", 7, 2, -1, 1, 178.0),
    Sketcher.Constraint("DistanceY", 1, 2, 1, 1, 4.56544),
    Sketcher.Constraint("DistanceY", 3, 3, 1, 2, 3.198201),
    Sketcher.Constraint("DistanceX", 0, 2, 0, 1, 9.095734),
])
pad8 = doc.addObject("PartDesign::Pad", "Pad007")
body.addObject(pad8)
pad8.Profile = sketch14
pad8.Length = 0.75

doc.recompute()
